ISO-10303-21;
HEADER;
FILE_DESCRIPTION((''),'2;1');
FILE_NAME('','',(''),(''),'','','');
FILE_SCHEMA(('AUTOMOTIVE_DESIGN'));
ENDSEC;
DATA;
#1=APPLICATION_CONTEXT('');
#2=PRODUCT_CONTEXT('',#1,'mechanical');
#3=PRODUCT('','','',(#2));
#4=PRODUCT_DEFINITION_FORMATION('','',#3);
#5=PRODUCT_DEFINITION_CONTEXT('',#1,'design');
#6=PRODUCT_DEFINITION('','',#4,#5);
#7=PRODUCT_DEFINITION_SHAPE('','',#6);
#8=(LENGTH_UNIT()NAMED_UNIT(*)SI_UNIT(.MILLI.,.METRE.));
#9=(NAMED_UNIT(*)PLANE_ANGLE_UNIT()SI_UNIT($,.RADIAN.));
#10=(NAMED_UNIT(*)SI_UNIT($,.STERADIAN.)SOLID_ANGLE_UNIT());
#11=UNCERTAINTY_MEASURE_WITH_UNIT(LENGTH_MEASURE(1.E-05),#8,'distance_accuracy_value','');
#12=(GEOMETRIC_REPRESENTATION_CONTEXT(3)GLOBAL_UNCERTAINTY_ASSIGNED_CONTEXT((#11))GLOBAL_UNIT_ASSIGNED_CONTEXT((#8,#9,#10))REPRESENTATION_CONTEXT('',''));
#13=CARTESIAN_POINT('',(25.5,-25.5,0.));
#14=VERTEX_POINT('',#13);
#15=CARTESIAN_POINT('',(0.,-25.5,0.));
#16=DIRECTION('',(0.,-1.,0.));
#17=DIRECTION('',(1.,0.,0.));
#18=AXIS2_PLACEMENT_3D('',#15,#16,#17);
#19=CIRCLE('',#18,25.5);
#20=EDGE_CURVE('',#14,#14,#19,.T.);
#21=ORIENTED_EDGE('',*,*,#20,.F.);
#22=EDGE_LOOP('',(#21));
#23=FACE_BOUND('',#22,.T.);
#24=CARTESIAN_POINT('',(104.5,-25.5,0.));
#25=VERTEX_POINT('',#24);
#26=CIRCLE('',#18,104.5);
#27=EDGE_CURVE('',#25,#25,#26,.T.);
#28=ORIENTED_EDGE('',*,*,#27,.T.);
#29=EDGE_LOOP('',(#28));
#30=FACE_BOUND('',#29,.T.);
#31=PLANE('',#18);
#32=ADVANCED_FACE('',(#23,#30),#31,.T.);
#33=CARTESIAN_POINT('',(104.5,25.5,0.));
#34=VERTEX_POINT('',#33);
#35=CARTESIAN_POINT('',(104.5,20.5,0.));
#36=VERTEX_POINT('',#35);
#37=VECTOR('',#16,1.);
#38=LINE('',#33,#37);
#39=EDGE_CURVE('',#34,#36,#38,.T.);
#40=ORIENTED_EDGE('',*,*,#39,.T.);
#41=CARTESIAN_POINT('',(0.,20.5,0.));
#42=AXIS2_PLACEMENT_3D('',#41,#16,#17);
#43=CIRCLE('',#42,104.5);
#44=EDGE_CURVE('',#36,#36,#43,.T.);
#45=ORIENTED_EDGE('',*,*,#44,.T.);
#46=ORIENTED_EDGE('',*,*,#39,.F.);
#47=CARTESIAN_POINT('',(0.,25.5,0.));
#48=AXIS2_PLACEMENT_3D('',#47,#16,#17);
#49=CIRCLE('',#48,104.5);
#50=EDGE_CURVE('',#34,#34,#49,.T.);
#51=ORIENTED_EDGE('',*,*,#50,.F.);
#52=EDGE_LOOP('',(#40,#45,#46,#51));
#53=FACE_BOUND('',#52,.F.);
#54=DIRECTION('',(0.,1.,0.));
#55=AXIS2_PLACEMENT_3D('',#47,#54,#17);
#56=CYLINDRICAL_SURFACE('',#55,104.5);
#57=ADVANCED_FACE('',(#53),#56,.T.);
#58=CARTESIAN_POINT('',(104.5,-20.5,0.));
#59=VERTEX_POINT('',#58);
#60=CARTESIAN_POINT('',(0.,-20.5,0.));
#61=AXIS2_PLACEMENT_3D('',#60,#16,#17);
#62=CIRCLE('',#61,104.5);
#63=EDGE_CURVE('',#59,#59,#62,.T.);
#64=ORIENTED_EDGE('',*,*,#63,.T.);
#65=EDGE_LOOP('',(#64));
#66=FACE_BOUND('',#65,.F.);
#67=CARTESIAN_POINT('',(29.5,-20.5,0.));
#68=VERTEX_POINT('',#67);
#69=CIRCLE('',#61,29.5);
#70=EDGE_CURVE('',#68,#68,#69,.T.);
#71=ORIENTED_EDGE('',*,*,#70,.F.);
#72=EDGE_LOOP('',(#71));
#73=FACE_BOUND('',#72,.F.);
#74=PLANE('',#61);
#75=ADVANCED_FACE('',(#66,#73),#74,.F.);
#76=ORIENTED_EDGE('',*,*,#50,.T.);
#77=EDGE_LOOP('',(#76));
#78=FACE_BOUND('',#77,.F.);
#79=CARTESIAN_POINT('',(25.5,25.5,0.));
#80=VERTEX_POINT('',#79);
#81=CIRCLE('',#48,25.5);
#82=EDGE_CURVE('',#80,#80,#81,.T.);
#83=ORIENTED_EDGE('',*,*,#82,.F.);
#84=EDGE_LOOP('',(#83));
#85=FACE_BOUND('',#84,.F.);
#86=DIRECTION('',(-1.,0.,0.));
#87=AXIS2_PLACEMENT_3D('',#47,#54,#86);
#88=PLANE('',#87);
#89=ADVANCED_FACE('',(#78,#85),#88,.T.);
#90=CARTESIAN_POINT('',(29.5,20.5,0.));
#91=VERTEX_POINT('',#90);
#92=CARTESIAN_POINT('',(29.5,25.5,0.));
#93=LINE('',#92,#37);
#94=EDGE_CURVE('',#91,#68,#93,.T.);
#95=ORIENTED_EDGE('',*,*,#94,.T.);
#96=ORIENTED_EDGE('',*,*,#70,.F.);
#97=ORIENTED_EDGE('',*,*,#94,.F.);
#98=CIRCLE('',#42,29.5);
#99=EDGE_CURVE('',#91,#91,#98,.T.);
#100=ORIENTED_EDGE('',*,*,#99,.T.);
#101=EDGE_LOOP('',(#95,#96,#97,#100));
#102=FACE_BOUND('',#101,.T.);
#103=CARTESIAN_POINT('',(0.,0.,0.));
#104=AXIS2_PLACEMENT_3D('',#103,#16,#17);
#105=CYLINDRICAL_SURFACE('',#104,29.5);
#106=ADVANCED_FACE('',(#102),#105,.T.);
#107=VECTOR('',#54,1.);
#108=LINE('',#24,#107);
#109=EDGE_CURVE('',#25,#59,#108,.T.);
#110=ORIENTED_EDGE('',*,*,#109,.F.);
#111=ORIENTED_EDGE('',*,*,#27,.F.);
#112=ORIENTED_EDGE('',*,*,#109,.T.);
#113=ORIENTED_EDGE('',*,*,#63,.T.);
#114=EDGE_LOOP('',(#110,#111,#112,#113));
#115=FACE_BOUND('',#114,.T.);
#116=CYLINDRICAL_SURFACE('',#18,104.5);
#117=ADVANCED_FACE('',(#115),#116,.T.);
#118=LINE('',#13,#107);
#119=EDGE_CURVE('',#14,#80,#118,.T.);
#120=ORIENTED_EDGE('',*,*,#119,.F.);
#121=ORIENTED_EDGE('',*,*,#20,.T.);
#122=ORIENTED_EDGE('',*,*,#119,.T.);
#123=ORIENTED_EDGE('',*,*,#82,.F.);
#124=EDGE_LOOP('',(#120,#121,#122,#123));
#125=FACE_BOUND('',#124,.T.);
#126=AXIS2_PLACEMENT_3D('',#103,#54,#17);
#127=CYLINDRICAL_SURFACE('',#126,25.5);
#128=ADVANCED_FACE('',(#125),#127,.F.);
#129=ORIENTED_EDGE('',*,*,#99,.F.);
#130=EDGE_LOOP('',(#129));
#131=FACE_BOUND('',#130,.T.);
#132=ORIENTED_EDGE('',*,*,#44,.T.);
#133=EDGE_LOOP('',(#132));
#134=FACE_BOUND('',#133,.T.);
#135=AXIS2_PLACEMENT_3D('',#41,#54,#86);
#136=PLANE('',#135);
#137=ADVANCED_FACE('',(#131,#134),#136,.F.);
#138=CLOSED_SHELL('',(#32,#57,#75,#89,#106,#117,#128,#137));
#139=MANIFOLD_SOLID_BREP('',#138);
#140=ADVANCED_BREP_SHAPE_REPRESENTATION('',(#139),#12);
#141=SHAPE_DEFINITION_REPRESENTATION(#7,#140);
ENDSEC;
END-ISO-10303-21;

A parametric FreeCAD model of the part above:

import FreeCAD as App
import Part
import Sketcher
from FreeCAD import Vector
Q = App.Units.Quantity

doc = App.newDocument("Part")
params = doc.addObject("Spreadsheet::Sheet", "Params")
for row, (alias, value) in enumerate([
    ("sketch1_diameter", "59 mm"),
    ("sketch1_diameter2", "51 mm"),
    ("pad1_length", "51 mm"),
    ("sketch2_diameter", "209 mm"),
    ("sketch2_diameter2", "59 mm"),
    ("pad2_length", "5 mm"),
], start=1):
    params.set(f"A{row}", alias)
    params.set(f"B{row}", "=" + value)
    params.setAlias(f"B{row}", alias)

body = doc.addObject("PartDesign::Body", "Body")

sketch1 = body.newObject("Sketcher::SketchObject", "Sketch")
sketch1.AttachmentSupport = (doc.getObject("XZ_Plane"), [""])
sketch1.MapMode = "FlatFace"
sketch1.addGeometry([
    Part.Circle(Vector(0, 0, 0), Vector(0, 0, 1), 30),
    Part.Circle(Vector(0, 0, 0), Vector(0, 0, 1), 26),
], False)
sketch1.addConstraint([
    Sketcher.Constraint("Coincident", 0, 3, -1, 1),
    Sketcher.Constraint("Coincident", 1, 3, -1, 1),
    Sketcher.Constraint("Diameter", 0, Q("59 mm")),
    Sketcher.Constraint("Diameter", 1, Q("51 mm")),
])
sketch1.setExpression("Constraints[2]", "Params.sketch1_diameter")
sketch1.setExpression("Constraints[3]", "Params.sketch1_diameter2")
pad1 = body.newObject("PartDesign::Pad", "Pad")
pad1.Profile = sketch1
pad1.setExpression("Length", "Params.pad1_length")
pad1.Midplane = True

sketch2 = body.newObject("Sketcher::SketchObject", "Sketch001")
sketch2.AttachmentSupport = (doc.getObject("XZ_Plane"), [""])
sketch2.MapMode = "FlatFace"
sketch2.AttachmentOffset = App.Placement(Vector(0, 0, 25.5), App.Rotation())
sketch2.addGeometry([
    Part.Circle(Vector(0, 0, 0), Vector(0, 0, 1), 104),
    Part.Circle(Vector(0, 0, 0), Vector(0, 0, 1), 30),
], False)
sketch2.addConstraint([
    Sketcher.Constraint("Coincident", 0, 3, -1, 1),
    Sketcher.Constraint("Coincident", 1, 3, -1, 1),
    Sketcher.Constraint("Diameter", 0, Q("209 mm")),
    Sketcher.Constraint("Diameter", 1, Q("59 mm")),
])
sketch2.setExpression("Constraints[2]", "Params.sketch2_diameter")
sketch2.setExpression("Constraints[3]", "Params.sketch2_diameter2")
pad2 = body.newObject("PartDesign::Pad", "Pad001")
pad2.Profile = sketch2
pad2.setExpression("Length", "Params.pad2_length")
pad2.Reversed = True
body2 = doc.addObject("PartDesign::Body", "Body001")
doc.recompute()

body2.BaseFeature = body
doc.recompute()

mirroring = doc.addObject("Part::Mirroring", "Mirroring")
mirroring.Source = body
mirroring.Base = Vector(0, 0, 0)
mirroring.Normal = Vector(0, -1, 0)
body3 = doc.addObject("PartDesign::Body", "Body002")
body3.BaseFeature = mirroring
boolean = body2.newObject("PartDesign::Boolean", "Boolean")
boolean.Type = "Fuse"
boolean.addObjects([body3])
doc.recompute()
mirroring.Visibility = False

doc.recompute()
